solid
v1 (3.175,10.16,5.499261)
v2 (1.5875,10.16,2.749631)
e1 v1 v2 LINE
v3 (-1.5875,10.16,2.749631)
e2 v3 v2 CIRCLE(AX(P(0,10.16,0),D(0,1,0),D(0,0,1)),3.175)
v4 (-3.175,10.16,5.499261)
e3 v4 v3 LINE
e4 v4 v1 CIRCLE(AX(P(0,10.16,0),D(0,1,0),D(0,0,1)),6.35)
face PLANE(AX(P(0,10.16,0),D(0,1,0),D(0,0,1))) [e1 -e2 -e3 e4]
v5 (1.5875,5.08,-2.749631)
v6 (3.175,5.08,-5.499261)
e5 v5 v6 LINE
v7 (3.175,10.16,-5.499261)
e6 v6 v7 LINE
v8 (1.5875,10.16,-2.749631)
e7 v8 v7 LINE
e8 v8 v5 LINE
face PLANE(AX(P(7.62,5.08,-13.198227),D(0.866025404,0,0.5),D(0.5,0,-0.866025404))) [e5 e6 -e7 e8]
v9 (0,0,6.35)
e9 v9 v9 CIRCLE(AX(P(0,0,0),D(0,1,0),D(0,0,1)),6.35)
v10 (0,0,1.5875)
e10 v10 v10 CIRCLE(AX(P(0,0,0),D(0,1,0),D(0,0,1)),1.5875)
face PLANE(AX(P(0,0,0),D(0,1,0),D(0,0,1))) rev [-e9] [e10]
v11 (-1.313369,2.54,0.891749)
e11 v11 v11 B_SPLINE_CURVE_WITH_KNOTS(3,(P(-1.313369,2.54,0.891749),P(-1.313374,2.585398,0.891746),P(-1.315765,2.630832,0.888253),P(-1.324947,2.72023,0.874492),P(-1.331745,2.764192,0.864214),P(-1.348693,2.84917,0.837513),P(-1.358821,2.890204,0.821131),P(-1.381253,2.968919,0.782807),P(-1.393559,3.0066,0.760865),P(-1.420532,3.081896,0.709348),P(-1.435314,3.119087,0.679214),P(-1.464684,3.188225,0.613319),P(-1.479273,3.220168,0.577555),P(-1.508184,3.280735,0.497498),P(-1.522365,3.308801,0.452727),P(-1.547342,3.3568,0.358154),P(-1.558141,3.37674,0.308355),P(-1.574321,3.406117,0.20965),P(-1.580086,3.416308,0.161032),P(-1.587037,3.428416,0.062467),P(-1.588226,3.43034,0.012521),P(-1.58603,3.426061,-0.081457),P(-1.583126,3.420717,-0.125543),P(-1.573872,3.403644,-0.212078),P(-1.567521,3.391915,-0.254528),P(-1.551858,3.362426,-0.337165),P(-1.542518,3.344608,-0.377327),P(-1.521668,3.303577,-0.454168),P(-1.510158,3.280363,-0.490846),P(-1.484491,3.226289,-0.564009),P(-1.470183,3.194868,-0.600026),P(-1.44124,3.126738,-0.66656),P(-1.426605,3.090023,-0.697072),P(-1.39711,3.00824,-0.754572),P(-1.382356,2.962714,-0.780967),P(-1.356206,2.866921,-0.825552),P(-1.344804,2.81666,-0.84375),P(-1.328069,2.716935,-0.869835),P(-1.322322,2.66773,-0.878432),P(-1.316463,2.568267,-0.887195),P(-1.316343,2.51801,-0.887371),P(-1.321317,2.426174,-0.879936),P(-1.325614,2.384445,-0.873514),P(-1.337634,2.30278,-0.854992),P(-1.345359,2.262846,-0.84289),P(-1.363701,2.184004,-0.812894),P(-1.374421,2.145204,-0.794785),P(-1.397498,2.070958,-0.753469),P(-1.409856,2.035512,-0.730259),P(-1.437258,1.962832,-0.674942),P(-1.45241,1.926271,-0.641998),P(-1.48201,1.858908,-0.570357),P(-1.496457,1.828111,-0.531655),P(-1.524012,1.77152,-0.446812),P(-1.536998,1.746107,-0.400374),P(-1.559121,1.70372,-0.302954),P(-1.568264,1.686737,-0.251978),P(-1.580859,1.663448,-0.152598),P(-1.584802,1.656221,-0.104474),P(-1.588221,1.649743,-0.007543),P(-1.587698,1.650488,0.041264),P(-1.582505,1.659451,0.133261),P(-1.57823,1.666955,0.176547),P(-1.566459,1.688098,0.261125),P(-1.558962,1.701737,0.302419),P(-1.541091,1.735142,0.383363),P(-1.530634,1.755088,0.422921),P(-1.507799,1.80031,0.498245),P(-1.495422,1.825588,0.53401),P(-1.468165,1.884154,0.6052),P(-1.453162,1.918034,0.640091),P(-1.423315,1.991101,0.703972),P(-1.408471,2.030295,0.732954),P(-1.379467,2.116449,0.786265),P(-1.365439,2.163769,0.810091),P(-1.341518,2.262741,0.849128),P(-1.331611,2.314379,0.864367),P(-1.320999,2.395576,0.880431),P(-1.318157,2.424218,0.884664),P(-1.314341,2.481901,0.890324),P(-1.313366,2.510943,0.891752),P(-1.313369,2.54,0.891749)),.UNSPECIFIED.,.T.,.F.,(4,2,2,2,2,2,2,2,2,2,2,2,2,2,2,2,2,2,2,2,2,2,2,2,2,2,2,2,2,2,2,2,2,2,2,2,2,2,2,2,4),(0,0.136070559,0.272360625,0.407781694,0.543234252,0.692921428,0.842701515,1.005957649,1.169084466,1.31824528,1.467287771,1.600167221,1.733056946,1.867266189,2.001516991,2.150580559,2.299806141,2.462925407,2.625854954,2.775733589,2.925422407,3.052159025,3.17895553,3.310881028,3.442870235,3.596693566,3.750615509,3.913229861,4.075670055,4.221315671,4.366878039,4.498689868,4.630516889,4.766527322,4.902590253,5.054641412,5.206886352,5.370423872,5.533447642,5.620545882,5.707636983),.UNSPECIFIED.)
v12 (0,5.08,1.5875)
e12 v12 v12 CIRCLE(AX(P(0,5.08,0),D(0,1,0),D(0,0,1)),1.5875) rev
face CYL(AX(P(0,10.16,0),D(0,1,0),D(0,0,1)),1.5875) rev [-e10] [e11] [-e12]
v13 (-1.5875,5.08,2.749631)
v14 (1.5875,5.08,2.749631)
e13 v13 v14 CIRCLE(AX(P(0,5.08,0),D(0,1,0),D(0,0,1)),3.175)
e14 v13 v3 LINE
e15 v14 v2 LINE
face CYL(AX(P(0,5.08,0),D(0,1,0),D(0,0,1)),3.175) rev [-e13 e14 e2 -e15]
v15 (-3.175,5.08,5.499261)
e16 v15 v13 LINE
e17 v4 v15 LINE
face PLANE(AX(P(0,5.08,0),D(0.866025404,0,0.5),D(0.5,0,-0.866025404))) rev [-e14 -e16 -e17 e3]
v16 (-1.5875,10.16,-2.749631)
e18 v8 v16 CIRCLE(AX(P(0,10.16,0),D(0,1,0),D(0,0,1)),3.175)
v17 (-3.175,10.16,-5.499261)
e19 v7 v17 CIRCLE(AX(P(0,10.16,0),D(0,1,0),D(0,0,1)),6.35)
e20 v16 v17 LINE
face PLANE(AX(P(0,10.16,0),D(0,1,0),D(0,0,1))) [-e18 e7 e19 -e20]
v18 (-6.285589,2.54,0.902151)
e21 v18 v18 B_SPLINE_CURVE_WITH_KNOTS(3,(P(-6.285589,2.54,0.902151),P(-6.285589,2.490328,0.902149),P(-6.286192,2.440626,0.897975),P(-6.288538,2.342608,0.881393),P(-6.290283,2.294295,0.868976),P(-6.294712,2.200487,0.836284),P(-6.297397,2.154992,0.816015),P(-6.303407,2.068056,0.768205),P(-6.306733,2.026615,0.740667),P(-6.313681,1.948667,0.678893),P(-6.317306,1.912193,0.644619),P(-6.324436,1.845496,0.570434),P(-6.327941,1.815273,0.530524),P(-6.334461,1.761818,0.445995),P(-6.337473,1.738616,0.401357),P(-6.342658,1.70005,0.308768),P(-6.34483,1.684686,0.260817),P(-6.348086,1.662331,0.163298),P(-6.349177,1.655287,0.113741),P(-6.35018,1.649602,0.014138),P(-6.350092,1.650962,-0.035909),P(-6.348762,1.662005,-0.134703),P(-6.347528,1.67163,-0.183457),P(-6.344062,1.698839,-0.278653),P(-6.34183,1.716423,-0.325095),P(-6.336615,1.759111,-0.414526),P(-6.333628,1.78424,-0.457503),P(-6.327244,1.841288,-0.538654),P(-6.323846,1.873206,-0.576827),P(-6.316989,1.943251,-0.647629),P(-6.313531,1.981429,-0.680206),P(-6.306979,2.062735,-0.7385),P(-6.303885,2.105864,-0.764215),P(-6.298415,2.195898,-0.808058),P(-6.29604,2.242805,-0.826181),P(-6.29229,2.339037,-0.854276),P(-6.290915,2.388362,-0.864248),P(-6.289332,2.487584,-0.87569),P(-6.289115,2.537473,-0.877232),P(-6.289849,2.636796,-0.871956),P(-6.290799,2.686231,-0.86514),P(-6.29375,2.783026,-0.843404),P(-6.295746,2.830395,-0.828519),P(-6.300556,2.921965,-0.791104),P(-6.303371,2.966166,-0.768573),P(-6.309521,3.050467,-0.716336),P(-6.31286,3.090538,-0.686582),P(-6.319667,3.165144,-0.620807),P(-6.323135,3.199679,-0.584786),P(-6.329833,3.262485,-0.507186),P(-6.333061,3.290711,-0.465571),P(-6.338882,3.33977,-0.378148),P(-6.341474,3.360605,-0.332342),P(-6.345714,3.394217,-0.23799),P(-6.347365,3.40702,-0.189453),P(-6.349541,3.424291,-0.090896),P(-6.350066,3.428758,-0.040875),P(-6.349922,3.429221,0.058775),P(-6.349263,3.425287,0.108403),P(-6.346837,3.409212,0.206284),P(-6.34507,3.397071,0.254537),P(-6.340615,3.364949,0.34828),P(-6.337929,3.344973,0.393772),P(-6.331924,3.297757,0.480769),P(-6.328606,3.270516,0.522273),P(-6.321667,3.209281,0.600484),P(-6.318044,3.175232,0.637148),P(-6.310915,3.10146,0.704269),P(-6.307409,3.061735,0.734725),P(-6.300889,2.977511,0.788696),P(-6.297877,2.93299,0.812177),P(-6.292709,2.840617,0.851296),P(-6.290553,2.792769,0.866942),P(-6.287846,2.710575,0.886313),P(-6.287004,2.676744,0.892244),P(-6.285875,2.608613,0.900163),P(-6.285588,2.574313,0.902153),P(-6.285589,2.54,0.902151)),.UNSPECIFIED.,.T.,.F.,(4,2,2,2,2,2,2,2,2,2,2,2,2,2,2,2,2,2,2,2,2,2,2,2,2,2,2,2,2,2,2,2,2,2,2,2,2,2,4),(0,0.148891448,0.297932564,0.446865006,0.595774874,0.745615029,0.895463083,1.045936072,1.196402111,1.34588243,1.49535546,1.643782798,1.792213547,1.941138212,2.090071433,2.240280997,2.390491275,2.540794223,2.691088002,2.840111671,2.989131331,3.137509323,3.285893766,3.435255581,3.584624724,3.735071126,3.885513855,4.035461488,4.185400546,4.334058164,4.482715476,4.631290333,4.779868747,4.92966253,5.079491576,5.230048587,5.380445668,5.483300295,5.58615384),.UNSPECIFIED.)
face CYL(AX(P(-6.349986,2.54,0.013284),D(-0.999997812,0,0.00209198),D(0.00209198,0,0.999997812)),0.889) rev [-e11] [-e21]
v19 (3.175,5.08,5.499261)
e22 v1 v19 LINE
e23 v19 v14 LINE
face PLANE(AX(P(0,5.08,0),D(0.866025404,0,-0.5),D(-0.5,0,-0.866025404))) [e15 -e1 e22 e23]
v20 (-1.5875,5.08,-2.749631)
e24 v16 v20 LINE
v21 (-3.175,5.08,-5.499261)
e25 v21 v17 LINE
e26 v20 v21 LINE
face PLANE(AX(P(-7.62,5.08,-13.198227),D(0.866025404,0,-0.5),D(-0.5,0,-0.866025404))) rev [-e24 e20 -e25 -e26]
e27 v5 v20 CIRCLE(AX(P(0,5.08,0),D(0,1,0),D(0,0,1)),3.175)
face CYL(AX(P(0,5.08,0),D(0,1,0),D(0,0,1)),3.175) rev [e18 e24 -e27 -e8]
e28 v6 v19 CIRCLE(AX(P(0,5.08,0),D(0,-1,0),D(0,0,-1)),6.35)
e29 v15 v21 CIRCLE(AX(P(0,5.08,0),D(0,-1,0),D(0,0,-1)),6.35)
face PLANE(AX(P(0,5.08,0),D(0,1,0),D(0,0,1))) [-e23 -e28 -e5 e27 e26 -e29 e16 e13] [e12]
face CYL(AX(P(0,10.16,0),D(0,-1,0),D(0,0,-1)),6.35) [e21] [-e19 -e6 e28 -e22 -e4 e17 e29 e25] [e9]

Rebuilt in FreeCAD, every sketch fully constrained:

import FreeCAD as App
import Part
import Sketcher

V = App.Vector
Q = App.Units.Quantity


def add_polygon(sketch, points):
    """Adds a closed chain of lines whose ends are joined by coincident constraints."""
    first, n = sketch.GeometryCount, len(points)
    for a, b in zip(points, points[1:] + points[:1]):
        sketch.addGeometry(Part.LineSegment(App.Vector(*a, 0), App.Vector(*b, 0)), False)
    for i in range(n):
        sketch.addConstraint(Sketcher.Constraint("Coincident", first + i, 2, first + (i + 1) % n, 1))

doc = App.newDocument("Part")
body = doc.addObject("PartDesign::Body", "Body")

sketch1 = body.newObject("Sketcher::SketchObject", "Sketch")
sketch1.AttachmentSupport = (doc.getObject("XZ_Plane"), [""])
sketch1.MapMode = "FlatFace"
sketch1.addGeometry(Part.Circle(V(0, 0, 0), V(0, 0, 1), 6), False)
sketch1.addConstraint(Sketcher.Constraint("Coincident", 0, 3, -1, 1))
sketch1.addConstraint(Sketcher.Constraint("Diameter", 0, Q("0.5 in")))
pad1 = body.newObject("PartDesign::Pad", "Pad")
pad1.Profile = sketch1
pad1.Length = Q("0.4 in")
pad1.Reversed = True

sketch2 = body.newObject("Sketcher::SketchObject", "Sketch001")
sketch2.AttachmentSupport = (doc.getObject("XZ_Plane"), [""])
sketch2.MapMode = "FlatFace"
sketch2.AttachmentOffset = App.Placement(V(0, 0, -0.4 * 25.4), App.Rotation())
sketch2.addGeometry(Part.Circle(V(0, 0, 0), V(0, 0, 1), 1.6), False)
sketch2.addConstraint(Sketcher.Constraint("Coincident", 0, 3, -1, 1))
sketch2.addConstraint(Sketcher.Constraint("Diameter", 0, Q("0.125 in")))
doc.recompute()
hole = body.newObject("PartDesign::Hole", "Hole")
hole.Profile = sketch2
hole.ThreadType = "None"
hole.Diameter = Q("0.125 in")
hole.DepthType = "ThroughAll"
hole.Reversed = True

sketch3 = body.newObject("Sketcher::SketchObject", "Sketch002")
sketch3.AttachmentSupport = (doc.getObject("XZ_Plane"), [""])
sketch3.MapMode = "FlatFace"
sketch3.AttachmentOffset = App.Placement(V(0, 0, -0.4 * 25.4), App.Rotation())
sketch3.addGeometry(Part.Circle(V(0, 0, 0), V(0, 0, 1), 3.2), False)
sketch3.addConstraint(Sketcher.Constraint("Coincident", 0, 3, -1, 1))
sketch3.addConstraint(Sketcher.Constraint("Diameter", 0, Q("0.25 in")))
pocket1 = body.newObject("PartDesign::Pocket", "Pocket")
pocket1.Profile = sketch3
pocket1.Length = Q("0.2 in")
pocket1.Reversed = True

sketch4 = body.newObject("Sketcher::SketchObject", "Sketch003")
sketch4.AttachmentSupport = (doc.getObject("XZ_Plane"), [""])
sketch4.MapMode = "FlatFace"
sketch4.AttachmentOffset = App.Placement(V(0, 0, -0.4 * 25.4), App.Rotation())
add_polygon(sketch4, [(-8, 13), (0, 0), (-8, -13)])
sketch4.addConstraint(Sketcher.Constraint("Vertical", 2))
sketch4.addConstraint(Sketcher.Constraint("Coincident", 0, 2, -1, 1))
sketch4.addConstraint(Sketcher.Constraint("Equal", 0, 1))
sketch4.addConstraint(Sketcher.Constraint("Angle", 0, Q("-60 deg")))
sketch4.addConstraint(Sketcher.Constraint("Distance", 0, Q("0.6 in")))
pocket2 = body.newObject("PartDesign::Pocket", "Pocket001")
pocket2.Profile = sketch4
pocket2.Length = Q("0.2 in")
pocket2.Reversed = True
doc.recompute()

mirrored = body.newObject("PartDesign::Mirrored", "Mirrored")
mirrored.Originals = [pocket2]
mirrored.MirrorPlane = (doc.getObject("YZ_Plane"), [""])
body.Tip = mirrored

sketch5 = body.newObject("Sketcher::SketchObject", "Sketch004")
sketch5.Placement = App.Placement(V(-6.349986, 2.54, 0.013284), App.Rotation(V(-0.00209198, 0, -0.999997812), V(0, -1, 0), V(-0.999997812, 0, 0.00209198), "ZXY"))
sketch5.addGeometry(Part.Circle(V(0, 0, 0), V(0, 0, 1), 0.9), False)
sketch5.addConstraint(Sketcher.Constraint("Coincident", 0, 3, -1, 1))
sketch5.addConstraint(Sketcher.Constraint("Diameter", 0, Q("0.07 in")))
pocket3 = body.newObject("PartDesign::Pocket", "Pocket002")
pocket3.Profile = sketch5
pocket3.Type = "UpToFirst"

doc.recompute()
